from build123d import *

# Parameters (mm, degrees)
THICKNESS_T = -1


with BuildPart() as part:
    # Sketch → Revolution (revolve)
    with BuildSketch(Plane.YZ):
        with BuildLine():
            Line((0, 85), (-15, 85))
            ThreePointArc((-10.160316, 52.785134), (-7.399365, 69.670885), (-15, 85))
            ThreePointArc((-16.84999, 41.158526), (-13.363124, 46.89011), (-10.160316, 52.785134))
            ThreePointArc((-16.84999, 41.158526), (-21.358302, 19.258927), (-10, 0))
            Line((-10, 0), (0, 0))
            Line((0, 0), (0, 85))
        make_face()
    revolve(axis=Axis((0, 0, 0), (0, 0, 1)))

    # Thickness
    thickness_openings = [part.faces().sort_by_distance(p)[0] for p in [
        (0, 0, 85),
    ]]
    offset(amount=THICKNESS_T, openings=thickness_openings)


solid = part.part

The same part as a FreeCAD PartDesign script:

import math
import FreeCAD as App
import Part
import Sketcher
from FreeCAD import Vector


def faces_at(feature, points):
    """Names of the faces that lie closest to the given points."""
    faces = feature.Shape.Faces
    near = lambda p: min(range(len(faces)), key=lambda i: faces[i].distToShape(Part.Vertex(*p))[0])
    return sorted({f"Face{near(p) + 1}" for p in points})

doc = App.newDocument("Part")
body = doc.addObject("PartDesign::Body", "Body")

# Sketch on YZ plane
sketch1 = body.newObject("Sketcher::SketchObject", "Sketch")
sketch1.AttachmentSupport = (doc.getObject("YZ_Plane"), [""])
sketch1.MapMode = "FlatFace"
sketch1.addGeometry(Part.LineSegment(Vector(0, 85, 0), Vector(-15, 85, 0)), False)
sketch1.addGeometry(Part.ArcOfCircle(Part.Circle(Vector(-35.029306, 65.52, 0), Vector(0, 0, 1), 27.939998), math.radians(-27.115994), math.radians(44.203456)), False)
sketch1.addGeometry(Part.ArcOfCircle(Part.Circle(Vector(-132.404613, 115.383754, 0), Vector(0, 0, 1), 137.339926), math.radians(-32.714211), math.radians(-27.115989)), False)
sketch1.addGeometry(Part.ArcOfCircle(Part.Circle(Vector(9.299999, 24.361371, 0), Vector(0, 0, 1), 31.079999), math.radians(147.285789), math.radians(231.612404)), False)
sketch1.addGeometry(Part.LineSegment(Vector(-10, 0, 0), Vector(0, 0, 0)), False)
sketch1.addGeometry(Part.LineSegment(Vector(0, 0, 0), Vector(0, 85, 0)), False)
sketch1.addConstraint(Sketcher.Constraint("Coincident", 0, 2, 1, 2))
sketch1.addConstraint(Sketcher.Constraint("Tangent", 1, 1, 2, 2))
sketch1.addConstraint(Sketcher.Constraint("Tangent", 2, 1, 3, 1))
sketch1.addConstraint(Sketcher.Constraint("Coincident", 3, 2, 4, 1))
sketch1.addConstraint(Sketcher.Constraint("Coincident", 4, 2, 5, 1))
sketch1.addConstraint(Sketcher.Constraint("Coincident", 5, 2, 0, 1))
sketch1.addConstraint(Sketcher.Constraint("Horizontal", 0))
sketch1.addConstraint(Sketcher.Constraint("Horizontal", 4))
sketch1.addConstraint(Sketcher.Constraint("Vertical", 5))
sketch1.addConstraint(Sketcher.Constraint("Coincident", 4, 2, -1, 1))
sketch1.addConstraint(Sketcher.Constraint("DistanceX", 0, 2, 0, 1, 15.0))
sketch1.addConstraint(Sketcher.Constraint("DistanceX", 4, 1, 4, 2, 10.0))
sketch1.addConstraint(Sketcher.Constraint("DistanceY", 5, 1, 5, 2, 85.0))
sketch1.addConstraint(Sketcher.Constraint("Radius", 1, 27.939998))
sketch1.addConstraint(Sketcher.Constraint("Radius", 3, 31.079999))
sketch1.addConstraint(Sketcher.Constraint("DistanceX", -1, 1, 3, 3, 9.299999))
sketch1.addConstraint(Sketcher.Constraint("DistanceY", -1, 1, 1, 3, 65.52))
sketch1.addConstraint(Sketcher.Constraint("Radius", 2, 137.339926))
revolution = body.newObject("PartDesign::Revolution", "Revolution")
revolution.Profile = sketch1
revolution.ReferenceAxis = (sketch1, ["V_Axis"])
revolution.Angle = 360
doc.recompute()

thickness = body.newObject("PartDesign::Thickness", "Thickness")
thickness.Base = (revolution, faces_at(revolution, [(0, 0, 85)]))
thickness.Value = 1
thickness.Reversed = True
thickness.Join = "Arc"

doc.recompute()
